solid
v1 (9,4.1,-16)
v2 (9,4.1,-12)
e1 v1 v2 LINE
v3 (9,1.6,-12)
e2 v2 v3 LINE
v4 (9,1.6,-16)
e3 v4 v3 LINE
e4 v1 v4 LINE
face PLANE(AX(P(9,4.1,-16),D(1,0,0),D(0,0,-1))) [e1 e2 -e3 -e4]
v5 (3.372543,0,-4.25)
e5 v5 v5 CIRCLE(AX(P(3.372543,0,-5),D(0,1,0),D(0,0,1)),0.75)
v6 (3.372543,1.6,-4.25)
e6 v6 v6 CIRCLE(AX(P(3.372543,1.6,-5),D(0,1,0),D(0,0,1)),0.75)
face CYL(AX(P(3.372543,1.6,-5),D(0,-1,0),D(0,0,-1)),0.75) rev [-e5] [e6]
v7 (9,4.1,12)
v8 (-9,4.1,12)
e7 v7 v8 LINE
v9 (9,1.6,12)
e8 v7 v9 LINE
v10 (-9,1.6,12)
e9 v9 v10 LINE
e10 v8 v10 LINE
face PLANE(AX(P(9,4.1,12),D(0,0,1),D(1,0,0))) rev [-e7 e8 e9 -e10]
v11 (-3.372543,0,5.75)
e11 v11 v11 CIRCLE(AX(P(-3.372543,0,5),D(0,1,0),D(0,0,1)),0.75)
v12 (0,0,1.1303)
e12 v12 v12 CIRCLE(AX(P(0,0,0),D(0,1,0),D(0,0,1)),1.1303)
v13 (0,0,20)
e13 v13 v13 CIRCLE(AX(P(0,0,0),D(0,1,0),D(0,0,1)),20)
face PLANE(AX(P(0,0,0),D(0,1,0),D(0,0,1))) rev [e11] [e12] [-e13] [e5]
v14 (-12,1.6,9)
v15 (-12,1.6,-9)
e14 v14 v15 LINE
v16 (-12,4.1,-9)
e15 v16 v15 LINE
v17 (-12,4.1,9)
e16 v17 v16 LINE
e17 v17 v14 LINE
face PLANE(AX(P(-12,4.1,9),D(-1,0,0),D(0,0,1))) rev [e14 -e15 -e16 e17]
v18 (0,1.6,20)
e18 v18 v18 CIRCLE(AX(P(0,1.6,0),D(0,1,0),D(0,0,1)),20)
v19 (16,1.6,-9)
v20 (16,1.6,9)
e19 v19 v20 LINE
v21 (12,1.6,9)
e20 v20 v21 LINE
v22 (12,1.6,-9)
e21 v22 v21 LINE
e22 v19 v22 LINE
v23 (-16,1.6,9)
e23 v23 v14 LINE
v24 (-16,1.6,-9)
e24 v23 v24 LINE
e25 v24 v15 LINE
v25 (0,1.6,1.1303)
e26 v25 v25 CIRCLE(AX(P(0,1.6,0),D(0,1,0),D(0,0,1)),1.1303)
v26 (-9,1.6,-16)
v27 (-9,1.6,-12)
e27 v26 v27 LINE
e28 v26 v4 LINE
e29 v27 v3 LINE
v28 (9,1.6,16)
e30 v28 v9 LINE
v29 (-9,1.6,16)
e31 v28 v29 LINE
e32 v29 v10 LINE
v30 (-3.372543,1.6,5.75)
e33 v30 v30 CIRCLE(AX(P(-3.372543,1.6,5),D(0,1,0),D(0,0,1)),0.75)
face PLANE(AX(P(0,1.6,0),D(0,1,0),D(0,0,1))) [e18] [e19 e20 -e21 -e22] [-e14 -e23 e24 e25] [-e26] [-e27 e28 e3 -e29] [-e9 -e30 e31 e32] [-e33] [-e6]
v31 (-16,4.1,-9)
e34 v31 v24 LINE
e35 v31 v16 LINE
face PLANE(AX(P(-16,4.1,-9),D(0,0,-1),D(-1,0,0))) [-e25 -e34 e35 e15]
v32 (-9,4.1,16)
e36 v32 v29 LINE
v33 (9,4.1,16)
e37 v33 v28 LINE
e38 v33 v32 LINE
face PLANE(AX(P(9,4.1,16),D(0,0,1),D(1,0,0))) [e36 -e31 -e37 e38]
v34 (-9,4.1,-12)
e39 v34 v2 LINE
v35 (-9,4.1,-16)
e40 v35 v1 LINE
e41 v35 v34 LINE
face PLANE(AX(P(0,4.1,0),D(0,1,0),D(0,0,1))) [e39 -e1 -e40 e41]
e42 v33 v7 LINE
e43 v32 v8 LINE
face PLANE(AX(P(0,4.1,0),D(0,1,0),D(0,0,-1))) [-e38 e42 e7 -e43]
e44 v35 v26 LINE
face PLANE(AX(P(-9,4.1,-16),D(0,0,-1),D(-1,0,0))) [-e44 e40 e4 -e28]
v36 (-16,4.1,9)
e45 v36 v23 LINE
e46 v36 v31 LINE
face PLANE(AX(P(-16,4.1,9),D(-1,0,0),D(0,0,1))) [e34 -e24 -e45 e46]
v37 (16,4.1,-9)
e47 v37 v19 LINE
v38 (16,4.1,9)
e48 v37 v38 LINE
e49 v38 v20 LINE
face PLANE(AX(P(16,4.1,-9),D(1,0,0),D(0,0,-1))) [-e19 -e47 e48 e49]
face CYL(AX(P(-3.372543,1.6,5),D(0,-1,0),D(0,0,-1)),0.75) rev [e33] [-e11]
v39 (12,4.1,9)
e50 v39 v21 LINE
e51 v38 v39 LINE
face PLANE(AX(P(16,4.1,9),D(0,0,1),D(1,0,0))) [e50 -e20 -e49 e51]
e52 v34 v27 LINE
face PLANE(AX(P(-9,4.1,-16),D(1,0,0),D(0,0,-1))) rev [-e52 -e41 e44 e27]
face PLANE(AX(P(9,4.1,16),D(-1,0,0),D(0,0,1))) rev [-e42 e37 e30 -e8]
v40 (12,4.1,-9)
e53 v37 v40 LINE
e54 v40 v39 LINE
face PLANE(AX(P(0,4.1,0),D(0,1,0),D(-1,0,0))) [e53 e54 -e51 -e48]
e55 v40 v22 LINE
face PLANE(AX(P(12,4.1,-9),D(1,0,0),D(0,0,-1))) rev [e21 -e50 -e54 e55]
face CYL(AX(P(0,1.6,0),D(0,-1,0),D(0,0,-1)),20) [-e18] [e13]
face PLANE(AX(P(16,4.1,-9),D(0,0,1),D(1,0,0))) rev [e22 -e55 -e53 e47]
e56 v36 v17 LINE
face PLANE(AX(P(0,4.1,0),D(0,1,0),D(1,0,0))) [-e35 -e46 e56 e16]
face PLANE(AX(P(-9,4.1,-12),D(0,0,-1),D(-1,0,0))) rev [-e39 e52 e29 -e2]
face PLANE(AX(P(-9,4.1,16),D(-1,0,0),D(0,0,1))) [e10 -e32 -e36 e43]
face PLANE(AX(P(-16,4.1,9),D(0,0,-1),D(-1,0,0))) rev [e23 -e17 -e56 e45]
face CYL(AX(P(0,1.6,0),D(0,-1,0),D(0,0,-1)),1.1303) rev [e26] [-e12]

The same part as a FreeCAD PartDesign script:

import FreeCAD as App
import Part
import Sketcher
Q = App.Units.Quantity

doc = App.newDocument("Part")
params = doc.addObject("Spreadsheet::Sheet", "Params")
for row, (alias, value) in enumerate([
    ("sketch1_diameter", "40 mm"),
    ("sketch1_diameter2", "1.5 mm"),
    ("pad1_length", "1.6 mm"),
    ("sketch2_width", "18 mm"),
    ("sketch2_height", "4 mm"),
    ("pad2_length", "2.5 mm"),
], start=1):
    params.set(f"A{row}", alias)
    params.set(f"B{row}", "=" + value)
    params.setAlias(f"B{row}", alias)

body = doc.addObject("PartDesign::Body", "Body")

# Sketch on XZ plane
sketch1 = doc.addObject("Sketcher::SketchObject", "Sketch")
body.addObject(sketch1)
sketch1.AttachmentSupport = (doc.XZ_Plane, [""])
sketch1.MapMode = "FlatFace"
sketch1.addGeometry([
    Part.Circle(App.Vector(0, 0, 0), App.Vector(0, 0, 1), 20),
    Part.Circle(App.Vector(-3.4, 5, 0), App.Vector(0, 0, 1), 0.8),
    Part.Circle(App.Vector(0, 0, 0), App.Vector(0, 0, 1), 1.1),
    Part.Circle(App.Vector(3.4, -5, 0), App.Vector(0, 0, 1), 0.8),
], False)
sketch1.addConstraint([
    Sketcher.Constraint("Coincident", 0, 3, -1, 1),
    Sketcher.Constraint("Coincident", 2, 3, -1, 1),
    Sketcher.Constraint("Equal", 1, 3),
    Sketcher.Constraint("Symmetric", 1, 3, 3, 3, -1, 1),
    Sketcher.Constraint("Diameter", 0, Q("40 mm")),
    Sketcher.Constraint("Diameter", 1, Q("1.5 mm")),
    Sketcher.Constraint("DistanceY", -1, 1, 1, 3, Q("5 mm")),
    Sketcher.Constraint("Diameter", 2, Q("2.2606 mm")),
    Sketcher.Constraint("DistanceX", 1, 3, -1, 1, Q("3.372543 mm")),
])
sketch1.setExpression("Constraints[4]", "Params.sketch1_diameter")
sketch1.setExpression("Constraints[5]", "Params.sketch1_diameter2")
pad1 = doc.addObject("PartDesign::Pad", "Pad")
body.addObject(pad1)
pad1.Profile = sketch1
pad1.setExpression("Length", "Params.pad1_length")
pad1.Reversed = True

# Sketch on XZ plane
sketch2 = doc.addObject("Sketcher::SketchObject", "Sketch001")
body.addObject(sketch2)
sketch2.AttachmentSupport = (doc.XZ_Plane, [""])
sketch2.MapMode = "FlatFace"
sketch2.AttachmentOffset = App.Placement(App.Vector(0, 0, -1.6), App.Rotation())
sketch2.addGeometry([
    Part.LineSegment(App.Vector(-9, -16, 0), App.Vector(-9, -12, 0)),
    Part.LineSegment(App.Vector(-9, -12, 0), App.Vector(9, -12, 0)),
    Part.LineSegment(App.Vector(9, -12, 0), App.Vector(9, -16, 0)),
    Part.LineSegment(App.Vector(9, -16, 0), App.Vector(-9, -16, 0)),
], False)
sketch2.addConstraint([
    Sketcher.Constraint("Coincident", 0, 2, 1, 1),
    Sketcher.Constraint("Coincident", 1, 2, 2, 1),
    Sketcher.Constraint("Coincident", 2, 2, 3, 1),
    Sketcher.Constraint("Coincident", 3, 2, 0, 1),
    Sketcher.Constraint("Vertical", 0),
    Sketcher.Constraint("Horizontal", 1),
    Sketcher.Constraint("Vertical", 2),
    Sketcher.Constraint("Horizontal", 3),
    Sketcher.Constraint("DistanceX", 1, 1, 1, 2, Q("18 mm")),
    Sketcher.Constraint("DistanceY", 0, 1, 0, 2, Q("4 mm")),
    Sketcher.Constraint("DistanceX", 0, 2, -1, 1, Q("9 mm")),
    Sketcher.Constraint("DistanceY", 0, 2, -1, 1, Q("12 mm")),
])
sketch2.setExpression("Constraints[8]", "Params.sketch2_width")
sketch2.setExpression("Constraints[9]", "Params.sketch2_height")
pad2 = doc.addObject("PartDesign::Pad", "Pad001")
body.addObject(pad2)
pad2.Profile = sketch2
pad2.setExpression("Length", "Params.pad2_length")
pad2.Reversed = True
doc.recompute()

polarpattern = doc.addObject("PartDesign::PolarPattern", "PolarPattern")
body.addObject(polarpattern)
polarpattern.Originals = [pad2]
polarpattern.Axis = (doc.Y_Axis, [""])
polarpattern.Angle = 360
polarpattern.Occurrences = 4
body.Tip = polarpattern

doc.recompute()
